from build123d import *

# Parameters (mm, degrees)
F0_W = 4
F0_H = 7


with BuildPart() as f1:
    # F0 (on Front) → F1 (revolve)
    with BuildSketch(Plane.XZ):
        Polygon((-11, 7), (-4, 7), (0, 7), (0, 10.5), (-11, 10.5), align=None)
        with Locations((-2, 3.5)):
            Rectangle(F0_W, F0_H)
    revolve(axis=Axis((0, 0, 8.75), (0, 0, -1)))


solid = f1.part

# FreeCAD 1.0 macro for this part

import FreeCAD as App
import Part
import Sketcher
Q = App.Units.Quantity

doc = App.newDocument("Part")
body = doc.addObject("PartDesign::Body", "Body")

# Sketch on XZ plane
sketch1 = doc.addObject("Sketcher::SketchObject", "Sketch")
body.addObject(sketch1)
sketch1.AttachmentSupport = (doc.XZ_Plane, [""])
sketch1.MapMode = "FlatFace"
sketch1.addGeometry(Part.LineSegment(App.Vector(-11, 7, 0), App.Vector(-4, 7, 0)), False)
sketch1.addGeometry(Part.LineSegment(App.Vector(-4, 7, 0), App.Vector(-4, 0, 0)), False)
sketch1.addGeometry(Part.LineSegment(App.Vector(-4, 0, 0), App.Vector(0, 0, 0)), False)
sketch1.addGeometry(Part.LineSegment(App.Vector(0, 0, 0), App.Vector(0, 10.5, 0)), False)
sketch1.addGeometry(Part.LineSegment(App.Vector(0, 10.5, 0), App.Vector(-11, 10.5, 0)), False)
sketch1.addGeometry(Part.LineSegment(App.Vector(-11, 10.5, 0), App.Vector(-11, 7, 0)), False)
sketch1.addConstraint(Sketcher.Constraint("Coincident", 0, 2, 1, 1))
sketch1.addConstraint(Sketcher.Constraint("Coincident", 1, 2, 2, 1))
sketch1.addConstraint(Sketcher.Constraint("Coincident", 2, 2, 3, 1))
sketch1.addConstraint(Sketcher.Constraint("Coincident", 3, 2, 4, 1))
sketch1.addConstraint(Sketcher.Constraint("Coincident", 4, 2, 5, 1))
sketch1.addConstraint(Sketcher.Constraint("Coincident", 5, 2, 0, 1))
sketch1.addConstraint(Sketcher.Constraint("Horizontal", 0))
sketch1.addConstraint(Sketcher.Constraint("Vertical", 1))
sketch1.addConstraint(Sketcher.Constraint("Horizontal", 2))
sketch1.addConstraint(Sketcher.Constraint("Vertical", 3))
sketch1.addConstraint(Sketcher.Constraint("Horizontal", 4))
sketch1.addConstraint(Sketcher.Constraint("Vertical", 5))
sketch1.addConstraint(Sketcher.Constraint("Coincident", 2, 2, -1, 1))
sketch1.addConstraint(Sketcher.Constraint("Equal", 0, 1))
sketch1.addConstraint(Sketcher.Constraint("DistanceX", 0, 1, 0, 2, Q("7 mm")))
sketch1.addConstraint(Sketcher.Constraint("DistanceX", 2, 1, 2, 2, Q("4 mm")))
sketch1.addConstraint(Sketcher.Constraint("DistanceY", 3, 1, 3, 2, Q("10.5 mm")))
revolution = doc.addObject("PartDesign::Revolution", "Revolution")
body.addObject(revolution)
revolution.Profile = sketch1
revolution.ReferenceAxis = (sketch1, ["V_Axis"])
revolution.Angle = 360

doc.recompute()
